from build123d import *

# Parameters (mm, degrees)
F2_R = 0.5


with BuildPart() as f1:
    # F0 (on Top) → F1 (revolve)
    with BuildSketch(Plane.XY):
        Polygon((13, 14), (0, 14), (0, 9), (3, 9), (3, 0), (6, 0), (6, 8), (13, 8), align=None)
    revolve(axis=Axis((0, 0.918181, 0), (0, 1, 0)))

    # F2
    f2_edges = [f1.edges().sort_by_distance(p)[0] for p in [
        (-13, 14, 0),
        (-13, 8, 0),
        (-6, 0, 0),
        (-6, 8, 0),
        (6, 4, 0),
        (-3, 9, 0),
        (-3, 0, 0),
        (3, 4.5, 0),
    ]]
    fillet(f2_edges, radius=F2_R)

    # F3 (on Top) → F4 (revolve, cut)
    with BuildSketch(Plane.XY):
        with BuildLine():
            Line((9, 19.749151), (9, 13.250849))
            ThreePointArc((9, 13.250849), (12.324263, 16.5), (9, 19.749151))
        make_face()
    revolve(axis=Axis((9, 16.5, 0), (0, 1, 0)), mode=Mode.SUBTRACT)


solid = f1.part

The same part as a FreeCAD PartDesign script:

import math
import FreeCAD as App
import Part
import Sketcher


def add_polygon(sketch, points):
    """Adds a closed chain of lines whose ends are joined by coincident constraints."""
    first, n = sketch.GeometryCount, len(points)
    for a, b in zip(points, points[1:] + points[:1]):
        sketch.addGeometry(Part.LineSegment(App.Vector(*a, 0), App.Vector(*b, 0)), False)
    for i in range(n):
        sketch.addConstraint(Sketcher.Constraint("Coincident", first + i, 2, first + (i + 1) % n, 1))

doc = App.newDocument("Part")
body = doc.addObject("PartDesign::Body", "Body")

# Sketch on XY plane
sketch1 = doc.addObject("Sketcher::SketchObject", "Sketch")
body.addObject(sketch1)
sketch1.AttachmentSupport = (doc.XY_Plane, [""])
sketch1.MapMode = "FlatFace"
add_polygon(sketch1, [(13, 14), (0, 14), (0, 9), (3, 9), (3, 0), (6, 0), (6, 8), (13, 8)])  # lines 0-7
sketch1.addConstraint(Sketcher.Constraint("Horizontal", 0))
sketch1.addConstraint(Sketcher.Constraint("Vertical", 1))
sketch1.addConstraint(Sketcher.Constraint("Horizontal", 2))
sketch1.addConstraint(Sketcher.Constraint("Vertical", 3))
sketch1.addConstraint(Sketcher.Constraint("Horizontal", 4))
sketch1.addConstraint(Sketcher.Constraint("Vertical", 5))
sketch1.addConstraint(Sketcher.Constraint("Horizontal", 6))
sketch1.addConstraint(Sketcher.Constraint("Vertical", 7))
sketch1.addConstraint(Sketcher.Constraint("PointOnObject", 0, 2, -2))
sketch1.addConstraint(Sketcher.Constraint("PointOnObject", 3, 2, -1))
sketch1.addConstraint(Sketcher.Constraint("Equal", 2, 4))
sketch1.addConstraint(Sketcher.Constraint("DistanceX", 0, 2, 0, 1, 13.0))
sketch1.addConstraint(Sketcher.Constraint("DistanceX", 2, 1, 2, 2, 3.0))
sketch1.addConstraint(Sketcher.Constraint("DistanceY", 1, 2, 1, 1, 5.0))
sketch1.addConstraint(Sketcher.Constraint("DistanceY", 3, 2, 3, 1, 9.0))
sketch1.addConstraint(Sketcher.Constraint("DistanceY", 5, 1, 5, 2, 8.0))
revolution = doc.addObject("PartDesign::Revolution", "Revolution")
body.addObject(revolution)
revolution.Profile = sketch1
revolution.ReferenceAxis = (sketch1, ["V_Axis"])
revolution.Angle = 360
doc.recompute()

fillet = doc.addObject("PartDesign::Fillet", "Fillet")
body.addObject(fillet)
fillet.Base = (revolution, ["Edge1"])
fillet.UseAllEdges = True
fillet.Radius = 0.5

# Sketch on XY plane
sketch2 = doc.addObject("Sketcher::SketchObject", "Sketch001")
body.addObject(sketch2)
sketch2.AttachmentSupport = (doc.XY_Plane, [""])
sketch2.MapMode = "FlatFace"
sketch2.addGeometry(Part.LineSegment(App.Vector(9, 19.7, 0), App.Vector(9, 13.3, 0)), False)
sketch2.addGeometry(Part.ArcOfCircle(Part.Circle(App.Vector(9.1, 16.5, 0), App.Vector(0, 0, 1), 3.2), math.radians(-91), math.radians(91)), False)
sketch2.addGeometry(Part.LineSegment(App.Vector(9, 13.3, 0), App.Vector(9, 19.7, 0)), True)  # axis
sketch2.addConstraint(Sketcher.Constraint("Coincident", 0, 1, 1, 2))
sketch2.addConstraint(Sketcher.Constraint("Coincident", 1, 1, 0, 2))
sketch2.addConstraint(Sketcher.Constraint("Vertical", 0))
sketch2.addConstraint(Sketcher.Constraint("Vertical", 2))
sketch2.addConstraint(Sketcher.Constraint("Coincident", 2, 1, 1, 1))
sketch2.addConstraint(Sketcher.Constraint("Equal", 0, 2))
sketch2.addConstraint(Sketcher.Constraint("Radius", 1, 3.25))
sketch2.addConstraint(Sketcher.Constraint("DistanceX", -1, 1, 0, 1, 9.0))
sketch2.addConstraint(Sketcher.Constraint("DistanceY", -1, 1, 1, 3, 16.5))
sketch2.addConstraint(Sketcher.Constraint("DistanceY", 0, 2, 0, 1, 6.498302))
groove = doc.addObject("PartDesign::Groove", "Groove")
body.addObject(groove)
groove.Profile = sketch2
groove.ReferenceAxis = (sketch2, ["Axis0"])
groove.Angle = 360

doc.recompute()
